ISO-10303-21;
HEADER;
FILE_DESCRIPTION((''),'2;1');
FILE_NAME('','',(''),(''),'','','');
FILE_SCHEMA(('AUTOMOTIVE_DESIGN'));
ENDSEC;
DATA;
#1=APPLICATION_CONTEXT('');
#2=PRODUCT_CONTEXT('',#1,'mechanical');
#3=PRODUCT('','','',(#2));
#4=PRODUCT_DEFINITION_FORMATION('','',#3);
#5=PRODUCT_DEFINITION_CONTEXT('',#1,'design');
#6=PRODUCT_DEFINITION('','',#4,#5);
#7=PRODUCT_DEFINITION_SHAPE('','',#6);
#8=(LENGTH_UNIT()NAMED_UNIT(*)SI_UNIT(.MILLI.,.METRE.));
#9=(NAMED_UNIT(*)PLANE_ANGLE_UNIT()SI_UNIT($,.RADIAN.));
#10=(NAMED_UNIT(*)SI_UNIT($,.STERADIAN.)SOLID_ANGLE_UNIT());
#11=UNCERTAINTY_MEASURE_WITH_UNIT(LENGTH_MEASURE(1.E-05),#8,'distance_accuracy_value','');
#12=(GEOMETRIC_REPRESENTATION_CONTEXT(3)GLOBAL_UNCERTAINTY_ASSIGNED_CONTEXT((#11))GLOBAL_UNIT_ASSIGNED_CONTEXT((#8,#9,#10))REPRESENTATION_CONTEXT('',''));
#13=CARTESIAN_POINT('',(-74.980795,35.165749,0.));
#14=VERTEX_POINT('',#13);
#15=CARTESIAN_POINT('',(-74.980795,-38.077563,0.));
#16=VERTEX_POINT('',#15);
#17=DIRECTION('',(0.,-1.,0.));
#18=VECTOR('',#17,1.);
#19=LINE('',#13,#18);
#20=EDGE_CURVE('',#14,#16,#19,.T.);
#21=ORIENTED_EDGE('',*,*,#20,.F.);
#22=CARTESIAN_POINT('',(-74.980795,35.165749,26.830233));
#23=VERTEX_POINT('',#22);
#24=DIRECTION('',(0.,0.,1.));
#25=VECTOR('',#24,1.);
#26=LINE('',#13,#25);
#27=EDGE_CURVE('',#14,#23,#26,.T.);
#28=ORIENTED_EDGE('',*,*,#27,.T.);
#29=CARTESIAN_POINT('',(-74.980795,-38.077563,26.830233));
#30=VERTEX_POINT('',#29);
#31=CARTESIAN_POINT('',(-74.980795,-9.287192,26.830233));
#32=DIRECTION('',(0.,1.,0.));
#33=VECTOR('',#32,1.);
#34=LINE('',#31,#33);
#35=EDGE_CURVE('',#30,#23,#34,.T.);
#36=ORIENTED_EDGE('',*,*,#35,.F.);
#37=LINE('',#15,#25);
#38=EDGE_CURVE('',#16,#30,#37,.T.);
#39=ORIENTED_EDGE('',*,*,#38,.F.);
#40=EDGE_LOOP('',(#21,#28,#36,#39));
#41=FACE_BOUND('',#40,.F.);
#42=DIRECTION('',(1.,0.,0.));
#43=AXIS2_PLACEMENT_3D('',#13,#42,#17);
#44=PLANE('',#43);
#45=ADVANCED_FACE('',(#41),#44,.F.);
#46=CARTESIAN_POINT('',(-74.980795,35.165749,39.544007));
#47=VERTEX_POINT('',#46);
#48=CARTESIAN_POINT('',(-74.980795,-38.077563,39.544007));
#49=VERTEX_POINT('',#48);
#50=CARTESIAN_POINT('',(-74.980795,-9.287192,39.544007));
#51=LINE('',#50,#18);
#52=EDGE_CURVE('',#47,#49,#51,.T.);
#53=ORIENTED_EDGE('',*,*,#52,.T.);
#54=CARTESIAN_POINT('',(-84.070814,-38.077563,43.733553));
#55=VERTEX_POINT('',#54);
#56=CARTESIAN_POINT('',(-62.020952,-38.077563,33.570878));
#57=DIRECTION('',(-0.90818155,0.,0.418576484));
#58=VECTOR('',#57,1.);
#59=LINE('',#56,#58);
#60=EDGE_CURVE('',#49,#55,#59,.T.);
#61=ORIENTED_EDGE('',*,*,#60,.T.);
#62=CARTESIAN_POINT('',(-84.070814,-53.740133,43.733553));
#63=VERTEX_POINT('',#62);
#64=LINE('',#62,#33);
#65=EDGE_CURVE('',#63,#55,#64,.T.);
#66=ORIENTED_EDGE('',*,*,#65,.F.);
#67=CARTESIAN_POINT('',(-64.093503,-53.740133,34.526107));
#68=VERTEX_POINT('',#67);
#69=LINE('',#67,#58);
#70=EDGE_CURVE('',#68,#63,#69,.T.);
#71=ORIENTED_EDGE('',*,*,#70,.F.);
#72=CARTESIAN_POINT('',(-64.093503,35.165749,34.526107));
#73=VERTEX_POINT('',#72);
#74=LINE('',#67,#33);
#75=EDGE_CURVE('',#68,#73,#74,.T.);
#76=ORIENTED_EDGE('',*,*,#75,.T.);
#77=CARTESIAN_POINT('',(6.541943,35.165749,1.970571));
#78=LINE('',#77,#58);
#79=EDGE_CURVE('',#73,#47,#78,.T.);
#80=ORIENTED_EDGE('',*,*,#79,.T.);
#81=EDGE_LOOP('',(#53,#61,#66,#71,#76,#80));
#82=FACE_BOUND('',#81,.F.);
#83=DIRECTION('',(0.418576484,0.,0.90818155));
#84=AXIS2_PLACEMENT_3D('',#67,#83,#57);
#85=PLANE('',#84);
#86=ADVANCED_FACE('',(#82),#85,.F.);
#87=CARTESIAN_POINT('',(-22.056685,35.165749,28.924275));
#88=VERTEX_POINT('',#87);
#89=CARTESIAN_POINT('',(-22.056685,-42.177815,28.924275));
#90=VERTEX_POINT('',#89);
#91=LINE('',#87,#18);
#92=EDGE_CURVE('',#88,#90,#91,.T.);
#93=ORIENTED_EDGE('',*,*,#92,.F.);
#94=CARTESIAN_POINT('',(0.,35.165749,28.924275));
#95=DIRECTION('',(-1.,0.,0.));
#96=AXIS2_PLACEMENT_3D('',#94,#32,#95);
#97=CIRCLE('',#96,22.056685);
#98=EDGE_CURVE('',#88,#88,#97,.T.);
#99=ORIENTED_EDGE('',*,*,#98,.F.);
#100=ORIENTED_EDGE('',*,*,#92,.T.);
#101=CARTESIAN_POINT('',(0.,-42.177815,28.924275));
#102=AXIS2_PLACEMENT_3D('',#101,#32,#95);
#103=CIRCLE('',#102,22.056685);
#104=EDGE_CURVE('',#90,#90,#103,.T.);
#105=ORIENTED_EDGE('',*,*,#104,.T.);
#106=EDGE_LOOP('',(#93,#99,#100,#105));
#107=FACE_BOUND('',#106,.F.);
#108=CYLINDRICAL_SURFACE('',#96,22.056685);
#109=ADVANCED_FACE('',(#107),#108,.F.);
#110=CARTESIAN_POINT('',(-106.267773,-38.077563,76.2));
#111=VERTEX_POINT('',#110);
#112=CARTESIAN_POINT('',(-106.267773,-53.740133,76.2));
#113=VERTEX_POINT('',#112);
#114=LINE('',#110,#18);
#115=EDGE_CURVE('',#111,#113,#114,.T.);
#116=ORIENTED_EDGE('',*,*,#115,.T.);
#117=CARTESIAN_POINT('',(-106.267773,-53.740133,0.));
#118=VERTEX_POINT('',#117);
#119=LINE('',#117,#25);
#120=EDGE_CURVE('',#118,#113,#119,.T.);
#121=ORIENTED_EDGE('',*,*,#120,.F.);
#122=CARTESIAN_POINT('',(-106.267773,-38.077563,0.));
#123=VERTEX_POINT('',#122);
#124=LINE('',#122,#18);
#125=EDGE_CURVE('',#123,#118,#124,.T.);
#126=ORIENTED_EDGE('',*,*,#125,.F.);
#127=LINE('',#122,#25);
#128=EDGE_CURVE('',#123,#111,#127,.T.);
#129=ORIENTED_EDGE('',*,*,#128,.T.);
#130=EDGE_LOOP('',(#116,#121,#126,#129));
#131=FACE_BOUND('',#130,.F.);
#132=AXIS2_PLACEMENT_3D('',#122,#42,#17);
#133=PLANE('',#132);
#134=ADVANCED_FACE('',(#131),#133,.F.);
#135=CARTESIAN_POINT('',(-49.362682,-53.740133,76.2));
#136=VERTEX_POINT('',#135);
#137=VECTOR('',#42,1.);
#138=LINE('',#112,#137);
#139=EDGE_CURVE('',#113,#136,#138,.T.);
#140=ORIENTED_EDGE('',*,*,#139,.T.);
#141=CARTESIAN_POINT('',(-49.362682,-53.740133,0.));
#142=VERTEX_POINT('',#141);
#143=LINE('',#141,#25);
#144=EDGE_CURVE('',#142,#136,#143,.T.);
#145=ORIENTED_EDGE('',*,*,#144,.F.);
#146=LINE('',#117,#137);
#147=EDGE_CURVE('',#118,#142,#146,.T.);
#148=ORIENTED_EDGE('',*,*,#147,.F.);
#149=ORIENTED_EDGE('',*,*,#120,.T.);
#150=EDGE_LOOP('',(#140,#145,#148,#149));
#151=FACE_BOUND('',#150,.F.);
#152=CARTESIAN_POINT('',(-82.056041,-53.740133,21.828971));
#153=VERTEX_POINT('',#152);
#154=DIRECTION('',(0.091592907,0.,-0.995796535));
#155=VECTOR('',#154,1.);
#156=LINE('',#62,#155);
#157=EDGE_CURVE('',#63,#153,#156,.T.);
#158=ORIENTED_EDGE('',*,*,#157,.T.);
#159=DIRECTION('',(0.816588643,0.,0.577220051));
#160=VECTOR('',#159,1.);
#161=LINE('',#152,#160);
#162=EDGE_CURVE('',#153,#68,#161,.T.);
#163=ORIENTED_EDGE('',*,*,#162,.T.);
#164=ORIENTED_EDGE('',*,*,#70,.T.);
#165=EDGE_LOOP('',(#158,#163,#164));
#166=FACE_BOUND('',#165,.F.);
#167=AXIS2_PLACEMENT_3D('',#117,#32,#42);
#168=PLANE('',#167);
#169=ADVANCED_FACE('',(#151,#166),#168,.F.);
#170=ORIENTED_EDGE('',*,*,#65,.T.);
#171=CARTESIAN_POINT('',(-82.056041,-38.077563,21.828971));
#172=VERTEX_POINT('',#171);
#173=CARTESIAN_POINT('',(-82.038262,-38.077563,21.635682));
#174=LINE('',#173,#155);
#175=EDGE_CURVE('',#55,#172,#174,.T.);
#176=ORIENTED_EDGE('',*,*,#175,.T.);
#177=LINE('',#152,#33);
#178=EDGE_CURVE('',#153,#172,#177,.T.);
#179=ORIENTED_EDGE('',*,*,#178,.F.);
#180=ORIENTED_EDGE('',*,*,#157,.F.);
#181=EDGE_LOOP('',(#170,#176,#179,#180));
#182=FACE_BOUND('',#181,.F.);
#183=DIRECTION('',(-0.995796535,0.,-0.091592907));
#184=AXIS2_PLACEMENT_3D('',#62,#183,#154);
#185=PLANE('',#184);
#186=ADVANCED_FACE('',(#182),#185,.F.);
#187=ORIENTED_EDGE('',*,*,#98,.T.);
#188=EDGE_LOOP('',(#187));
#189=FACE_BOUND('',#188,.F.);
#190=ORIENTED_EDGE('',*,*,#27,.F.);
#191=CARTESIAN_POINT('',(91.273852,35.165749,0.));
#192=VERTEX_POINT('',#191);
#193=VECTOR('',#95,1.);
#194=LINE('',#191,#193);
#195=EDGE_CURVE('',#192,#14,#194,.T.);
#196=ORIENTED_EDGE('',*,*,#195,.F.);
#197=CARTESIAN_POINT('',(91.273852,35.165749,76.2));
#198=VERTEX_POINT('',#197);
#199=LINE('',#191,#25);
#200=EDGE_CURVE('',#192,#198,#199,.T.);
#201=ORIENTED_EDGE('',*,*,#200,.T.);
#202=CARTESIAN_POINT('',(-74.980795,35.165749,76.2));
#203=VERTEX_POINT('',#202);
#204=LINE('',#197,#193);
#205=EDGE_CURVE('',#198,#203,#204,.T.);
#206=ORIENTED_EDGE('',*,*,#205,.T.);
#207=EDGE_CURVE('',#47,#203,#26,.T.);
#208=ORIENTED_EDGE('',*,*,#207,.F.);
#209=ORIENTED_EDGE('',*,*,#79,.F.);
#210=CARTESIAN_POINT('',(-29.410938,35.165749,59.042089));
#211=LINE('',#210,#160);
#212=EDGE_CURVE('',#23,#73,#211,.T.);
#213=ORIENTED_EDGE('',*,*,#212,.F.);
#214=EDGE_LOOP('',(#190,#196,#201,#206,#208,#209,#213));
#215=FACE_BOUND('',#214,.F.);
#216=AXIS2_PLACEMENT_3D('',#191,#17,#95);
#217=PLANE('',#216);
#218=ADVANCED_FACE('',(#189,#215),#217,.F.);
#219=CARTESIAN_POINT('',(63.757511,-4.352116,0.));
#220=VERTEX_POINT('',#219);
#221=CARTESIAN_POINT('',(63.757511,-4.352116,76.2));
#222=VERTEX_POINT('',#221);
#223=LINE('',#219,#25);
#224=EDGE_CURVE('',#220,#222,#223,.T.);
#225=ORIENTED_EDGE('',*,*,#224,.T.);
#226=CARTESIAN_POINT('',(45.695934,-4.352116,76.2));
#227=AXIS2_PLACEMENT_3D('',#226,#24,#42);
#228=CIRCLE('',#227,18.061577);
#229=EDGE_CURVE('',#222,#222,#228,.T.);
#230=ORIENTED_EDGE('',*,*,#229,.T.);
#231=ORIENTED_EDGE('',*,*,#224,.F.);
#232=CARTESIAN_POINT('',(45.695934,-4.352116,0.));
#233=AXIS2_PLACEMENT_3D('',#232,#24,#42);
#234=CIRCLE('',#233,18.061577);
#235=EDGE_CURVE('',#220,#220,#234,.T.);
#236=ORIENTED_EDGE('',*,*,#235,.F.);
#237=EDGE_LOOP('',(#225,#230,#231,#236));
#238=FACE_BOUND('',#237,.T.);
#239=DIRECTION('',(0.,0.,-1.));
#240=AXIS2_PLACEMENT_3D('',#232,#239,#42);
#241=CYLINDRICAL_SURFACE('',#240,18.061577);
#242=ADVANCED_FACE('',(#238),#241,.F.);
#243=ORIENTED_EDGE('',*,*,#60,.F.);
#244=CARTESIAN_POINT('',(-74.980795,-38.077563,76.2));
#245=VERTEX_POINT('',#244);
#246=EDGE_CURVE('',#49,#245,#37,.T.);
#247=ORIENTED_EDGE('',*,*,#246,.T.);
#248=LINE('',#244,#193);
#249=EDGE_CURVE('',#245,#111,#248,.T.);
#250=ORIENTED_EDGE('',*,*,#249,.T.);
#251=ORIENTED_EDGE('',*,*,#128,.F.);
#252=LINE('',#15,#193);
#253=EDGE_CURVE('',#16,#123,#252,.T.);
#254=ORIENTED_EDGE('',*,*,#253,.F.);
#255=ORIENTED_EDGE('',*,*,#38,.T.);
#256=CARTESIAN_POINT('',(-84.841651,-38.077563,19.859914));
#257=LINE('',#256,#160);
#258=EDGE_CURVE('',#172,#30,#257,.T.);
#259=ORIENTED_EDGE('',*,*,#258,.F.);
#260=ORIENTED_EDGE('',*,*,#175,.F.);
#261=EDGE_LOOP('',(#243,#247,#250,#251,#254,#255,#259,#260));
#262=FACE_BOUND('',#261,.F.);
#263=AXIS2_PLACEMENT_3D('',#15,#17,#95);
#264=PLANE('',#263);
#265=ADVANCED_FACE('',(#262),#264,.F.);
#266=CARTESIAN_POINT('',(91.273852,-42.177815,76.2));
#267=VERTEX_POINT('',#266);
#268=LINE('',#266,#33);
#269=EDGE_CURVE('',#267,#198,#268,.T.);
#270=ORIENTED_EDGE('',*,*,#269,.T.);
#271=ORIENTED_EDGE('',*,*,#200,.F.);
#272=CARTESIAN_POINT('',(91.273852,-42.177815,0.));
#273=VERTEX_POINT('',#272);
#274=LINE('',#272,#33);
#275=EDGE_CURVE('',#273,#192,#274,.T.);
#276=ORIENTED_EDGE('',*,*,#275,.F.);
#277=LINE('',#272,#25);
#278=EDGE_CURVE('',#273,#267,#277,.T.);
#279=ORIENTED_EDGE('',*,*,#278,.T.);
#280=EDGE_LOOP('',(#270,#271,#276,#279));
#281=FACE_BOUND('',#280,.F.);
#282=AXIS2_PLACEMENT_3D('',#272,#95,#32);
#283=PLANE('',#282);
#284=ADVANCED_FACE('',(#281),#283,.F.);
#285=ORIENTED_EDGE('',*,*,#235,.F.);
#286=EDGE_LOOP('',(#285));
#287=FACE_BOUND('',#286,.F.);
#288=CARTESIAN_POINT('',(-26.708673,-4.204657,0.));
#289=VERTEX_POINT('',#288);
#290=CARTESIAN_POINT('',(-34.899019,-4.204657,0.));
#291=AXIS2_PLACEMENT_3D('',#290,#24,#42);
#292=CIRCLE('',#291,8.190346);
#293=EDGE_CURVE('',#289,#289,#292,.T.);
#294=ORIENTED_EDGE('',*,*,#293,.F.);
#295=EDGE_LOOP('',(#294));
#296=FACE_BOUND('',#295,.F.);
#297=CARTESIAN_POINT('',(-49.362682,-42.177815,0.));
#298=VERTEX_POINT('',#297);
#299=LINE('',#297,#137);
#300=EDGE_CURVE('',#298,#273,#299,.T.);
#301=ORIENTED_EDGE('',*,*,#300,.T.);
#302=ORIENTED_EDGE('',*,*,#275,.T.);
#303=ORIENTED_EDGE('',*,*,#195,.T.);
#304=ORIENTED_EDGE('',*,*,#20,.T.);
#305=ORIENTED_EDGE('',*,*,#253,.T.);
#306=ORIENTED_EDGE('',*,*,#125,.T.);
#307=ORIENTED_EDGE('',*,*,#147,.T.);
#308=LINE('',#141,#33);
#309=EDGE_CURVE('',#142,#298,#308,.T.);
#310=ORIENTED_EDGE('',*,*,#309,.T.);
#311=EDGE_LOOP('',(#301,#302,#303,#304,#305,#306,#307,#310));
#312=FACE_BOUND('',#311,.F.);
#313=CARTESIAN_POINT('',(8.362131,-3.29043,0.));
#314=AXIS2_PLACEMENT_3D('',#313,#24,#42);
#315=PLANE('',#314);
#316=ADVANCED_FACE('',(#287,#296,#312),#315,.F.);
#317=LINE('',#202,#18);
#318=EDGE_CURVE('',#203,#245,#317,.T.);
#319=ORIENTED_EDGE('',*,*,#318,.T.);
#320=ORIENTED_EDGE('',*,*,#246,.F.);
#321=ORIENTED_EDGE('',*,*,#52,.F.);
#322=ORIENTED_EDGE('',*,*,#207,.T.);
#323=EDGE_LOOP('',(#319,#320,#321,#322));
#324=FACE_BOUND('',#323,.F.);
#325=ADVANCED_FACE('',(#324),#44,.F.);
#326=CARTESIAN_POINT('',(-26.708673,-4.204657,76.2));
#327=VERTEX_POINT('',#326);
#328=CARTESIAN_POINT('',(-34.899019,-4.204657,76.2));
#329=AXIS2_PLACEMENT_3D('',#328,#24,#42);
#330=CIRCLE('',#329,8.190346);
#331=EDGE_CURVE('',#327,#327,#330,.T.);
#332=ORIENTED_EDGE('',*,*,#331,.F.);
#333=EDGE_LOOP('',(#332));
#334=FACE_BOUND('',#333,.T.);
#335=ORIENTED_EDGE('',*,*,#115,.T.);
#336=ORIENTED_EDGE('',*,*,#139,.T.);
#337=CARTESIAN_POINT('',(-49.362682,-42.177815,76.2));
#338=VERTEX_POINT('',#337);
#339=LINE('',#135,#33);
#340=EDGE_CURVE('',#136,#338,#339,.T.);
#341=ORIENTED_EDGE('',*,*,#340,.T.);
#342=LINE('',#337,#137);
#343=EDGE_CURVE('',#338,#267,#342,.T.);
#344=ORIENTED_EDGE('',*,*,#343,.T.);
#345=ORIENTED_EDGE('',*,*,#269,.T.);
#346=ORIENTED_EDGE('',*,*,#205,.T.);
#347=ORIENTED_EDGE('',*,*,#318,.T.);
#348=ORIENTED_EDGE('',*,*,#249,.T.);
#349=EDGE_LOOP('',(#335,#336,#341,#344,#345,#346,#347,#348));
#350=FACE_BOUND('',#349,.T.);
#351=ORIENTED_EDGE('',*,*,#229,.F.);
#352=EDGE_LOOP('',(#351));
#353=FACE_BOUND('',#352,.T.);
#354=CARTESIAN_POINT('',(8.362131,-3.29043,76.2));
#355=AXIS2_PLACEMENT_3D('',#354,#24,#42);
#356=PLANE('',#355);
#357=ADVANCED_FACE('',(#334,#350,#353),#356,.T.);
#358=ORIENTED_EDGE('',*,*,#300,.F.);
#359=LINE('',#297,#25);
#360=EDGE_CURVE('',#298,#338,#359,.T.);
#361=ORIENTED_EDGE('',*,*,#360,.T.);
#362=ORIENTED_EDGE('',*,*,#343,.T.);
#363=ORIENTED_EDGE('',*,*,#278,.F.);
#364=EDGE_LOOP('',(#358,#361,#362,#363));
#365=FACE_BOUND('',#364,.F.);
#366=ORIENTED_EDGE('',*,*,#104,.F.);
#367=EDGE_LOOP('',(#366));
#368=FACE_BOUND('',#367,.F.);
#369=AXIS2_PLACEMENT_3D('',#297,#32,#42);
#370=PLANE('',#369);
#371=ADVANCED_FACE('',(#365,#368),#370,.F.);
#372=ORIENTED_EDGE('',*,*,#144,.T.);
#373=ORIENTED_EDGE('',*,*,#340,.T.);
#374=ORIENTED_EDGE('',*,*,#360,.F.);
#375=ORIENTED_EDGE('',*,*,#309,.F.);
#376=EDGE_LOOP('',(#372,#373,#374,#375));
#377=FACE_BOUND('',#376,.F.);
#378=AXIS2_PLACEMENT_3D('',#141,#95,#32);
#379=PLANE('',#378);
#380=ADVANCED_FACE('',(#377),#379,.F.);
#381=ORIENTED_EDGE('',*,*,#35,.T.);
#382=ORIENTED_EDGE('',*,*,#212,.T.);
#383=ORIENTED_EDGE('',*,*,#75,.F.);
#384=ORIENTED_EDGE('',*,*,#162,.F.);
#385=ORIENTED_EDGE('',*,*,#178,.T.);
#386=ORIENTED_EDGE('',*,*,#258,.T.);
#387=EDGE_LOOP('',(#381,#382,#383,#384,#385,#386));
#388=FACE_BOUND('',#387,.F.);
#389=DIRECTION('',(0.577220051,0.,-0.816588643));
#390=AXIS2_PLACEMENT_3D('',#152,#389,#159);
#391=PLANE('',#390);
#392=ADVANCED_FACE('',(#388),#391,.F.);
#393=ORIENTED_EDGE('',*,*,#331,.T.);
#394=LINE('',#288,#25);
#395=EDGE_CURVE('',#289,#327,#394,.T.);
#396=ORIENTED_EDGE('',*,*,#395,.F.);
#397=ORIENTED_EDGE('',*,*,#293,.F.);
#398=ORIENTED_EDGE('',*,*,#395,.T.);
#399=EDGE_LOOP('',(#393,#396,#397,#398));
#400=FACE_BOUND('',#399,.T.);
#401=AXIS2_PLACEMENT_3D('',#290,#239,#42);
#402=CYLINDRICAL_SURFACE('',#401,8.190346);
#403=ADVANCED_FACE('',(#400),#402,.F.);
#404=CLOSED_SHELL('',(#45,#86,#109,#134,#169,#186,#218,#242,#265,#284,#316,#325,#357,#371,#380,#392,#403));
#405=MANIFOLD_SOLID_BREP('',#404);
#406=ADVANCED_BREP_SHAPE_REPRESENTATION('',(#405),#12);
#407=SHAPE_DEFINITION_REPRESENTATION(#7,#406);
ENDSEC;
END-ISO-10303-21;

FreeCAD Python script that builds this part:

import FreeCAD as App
import Part
import Sketcher
from FreeCAD import Vector
Q = App.Units.Quantity

doc = App.newDocument("Part")
body = doc.addObject("PartDesign::Body", "Body")

# Sketch on XY plane
sketch1 = doc.addObject("Sketcher::SketchObject", "Sketch")
body.addObject(sketch1)
sketch1.AttachmentSupport = (doc.XY_Plane, [""])
sketch1.MapMode = "FlatFace"
sketch1.addGeometry([
    Part.LineSegment(Vector(91.273852, 35.165749, 0), Vector(-74.980795, 35.165749, 0)),  # 0
    Part.LineSegment(Vector(-74.980795, 35.165749, 0), Vector(-74.980795, -38.077563, 0)),  # 1
    Part.LineSegment(Vector(-74.980795, -38.077563, 0), Vector(-106.267773, -38.077563, 0)),  # 2
    Part.LineSegment(Vector(-106.267773, -38.077563, 0), Vector(-106.267773, -53.740133, 0)),  # 3
    Part.LineSegment(Vector(-106.267773, -53.740133, 0), Vector(-49.362682, -53.740133, 0)),  # 4
    Part.LineSegment(Vector(-49.362682, -53.740133, 0), Vector(-49.362682, -42.177815, 0)),  # 5
    Part.LineSegment(Vector(-49.362682, -42.177815, 0), Vector(91.273852, -42.177815, 0)),  # 6
    Part.LineSegment(Vector(91.273852, -42.177815, 0), Vector(91.273852, 35.165749, 0)),  # 7
    Part.Circle(Vector(-34.899019, -4.204657, 0), Vector(0, 0, 1), 8.190346),  # 8
    Part.Circle(Vector(45.695934, -4.352116, 0), Vector(0, 0, 1), 18.061577),  # 9
], False)
sketch1.addConstraint([
    Sketcher.Constraint("Coincident", 0, 2, 1, 1),
    Sketcher.Constraint("Coincident", 1, 2, 2, 1),
    Sketcher.Constraint("Coincident", 2, 2, 3, 1),
    Sketcher.Constraint("Coincident", 3, 2, 4, 1),
    Sketcher.Constraint("Coincident", 4, 2, 5, 1),
    Sketcher.Constraint("Coincident", 5, 2, 6, 1),
    Sketcher.Constraint("Coincident", 6, 2, 7, 1),
    Sketcher.Constraint("Coincident", 7, 2, 0, 1),
    Sketcher.Constraint("Horizontal", 0),
    Sketcher.Constraint("Vertical", 1),
    Sketcher.Constraint("Horizontal", 2),
    Sketcher.Constraint("Vertical", 3),
    Sketcher.Constraint("Horizontal", 4),
    Sketcher.Constraint("Vertical", 5),
    Sketcher.Constraint("Horizontal", 6),
    Sketcher.Constraint("Vertical", 7),
    Sketcher.Constraint("Diameter", 8, Q("16.380691 mm")),
    Sketcher.Constraint("DistanceX", 0, 2, -1, 1, Q("2.9519998 in")),
    Sketcher.Constraint("Diameter", 9, Q("36.123154 mm")),
    Sketcher.Constraint("DistanceX", 4, 1, 4, 2, Q("56.905091 mm")),
    Sketcher.Constraint("DistanceY", 3, 2, 3, 1, Q("15.66257 mm")),
    Sketcher.Constraint("DistanceY", 6, 2, 9, 3, Q("37.825698 mm")),
    Sketcher.Constraint("DistanceX", 0, 2, 0, 1, Q("166.254647 mm")),
    Sketcher.Constraint("DistanceX", 2, 2, 2, 1, Q("31.286977 mm")),
    Sketcher.Constraint("DistanceY", 1, 2, 1, 1, Q("73.243313 mm")),
    Sketcher.Constraint("DistanceY", 5, 1, 5, 2, Q("11.562318 mm")),
    Sketcher.Constraint("DistanceX", 8, 3, -1, 1, Q("34.899019 mm")),
    Sketcher.Constraint("DistanceY", -1, 1, 0, 2, Q("35.165749 mm")),
    Sketcher.Constraint("DistanceY", 9, 3, 8, 3, Q("0.147459 mm")),
    Sketcher.Constraint("DistanceX", 0, 2, 9, 3, Q("120.67673 mm")),
])
pad1 = doc.addObject("PartDesign::Pad", "Pad")
body.addObject(pad1)
pad1.Profile = sketch1
pad1.Length = Q("3 in")

# Sketch on XZ plane
sketch2 = doc.addObject("Sketcher::SketchObject", "Sketch001")
body.addObject(sketch2)
sketch2.AttachmentSupport = (doc.XZ_Plane, [""])
sketch2.MapMode = "FlatFace"
sketch2.AttachmentOffset = App.Placement(Vector(0, 0, 53.740133), App.Rotation())
sketch2.addGeometry([
    Part.LineSegment(Vector(-64.093503, 34.526107, 0), Vector(-84.070814, 43.733553, 0)),
    Part.LineSegment(Vector(-84.070814, 43.733553, 0), Vector(-82.056041, 21.828971, 0)),
    Part.LineSegment(Vector(-82.056041, 21.828971, 0), Vector(-64.093503, 34.526107, 0)),
], False)
sketch2.addConstraint([
    Sketcher.Constraint("Coincident", 0, 2, 1, 1),
    Sketcher.Constraint("Coincident", 1, 2, 2, 1),
    Sketcher.Constraint("Coincident", 2, 2, 0, 1),
    Sketcher.Constraint("Equal", 0, 1),
    Sketcher.Constraint("Equal", 1, 2),
    Sketcher.Constraint("DistanceX", 1, 2, -1, 1, Q("82.056041 mm")),
    Sketcher.Constraint("DistanceY", -1, 1, 1, 2, Q("21.828971 mm")),
    Sketcher.Constraint("DistanceY", 1, 2, 0, 2, Q("21.904581 mm")),
    Sketcher.Constraint("DistanceX", 0, 2, 2, 2, Q("19.977311 mm")),
])
pocket1 = doc.addObject("PartDesign::Pocket", "Pocket")
body.addObject(pocket1)
pocket1.Profile = sketch2
pocket1.Type = "ThroughAll"

# Sketch on XZ plane
sketch3 = doc.addObject("Sketcher::SketchObject", "Sketch002")
body.addObject(sketch3)
sketch3.AttachmentSupport = (doc.XZ_Plane, [""])
sketch3.MapMode = "FlatFace"
sketch3.AttachmentOffset = App.Placement(Vector(0, 0, -35.165749), App.Rotation())
sketch3.addGeometry(Part.Circle(Vector(0, 28.924275, 0), Vector(0, 0, 1), 22.056685), False)
sketch3.addConstraint([
    Sketcher.Constraint("PointOnObject", 0, 3, -2),
    Sketcher.Constraint("Diameter", 0, Q("44.11337 mm")),
    Sketcher.Constraint("DistanceY", -1, 1, 0, 3, Q("28.924275 mm")),
])
pocket2 = doc.addObject("PartDesign::Pocket", "Pocket001")
body.addObject(pocket2)
pocket2.Profile = sketch3
pocket2.Type = "ThroughAll"
pocket2.Reversed = True

doc.recompute()
